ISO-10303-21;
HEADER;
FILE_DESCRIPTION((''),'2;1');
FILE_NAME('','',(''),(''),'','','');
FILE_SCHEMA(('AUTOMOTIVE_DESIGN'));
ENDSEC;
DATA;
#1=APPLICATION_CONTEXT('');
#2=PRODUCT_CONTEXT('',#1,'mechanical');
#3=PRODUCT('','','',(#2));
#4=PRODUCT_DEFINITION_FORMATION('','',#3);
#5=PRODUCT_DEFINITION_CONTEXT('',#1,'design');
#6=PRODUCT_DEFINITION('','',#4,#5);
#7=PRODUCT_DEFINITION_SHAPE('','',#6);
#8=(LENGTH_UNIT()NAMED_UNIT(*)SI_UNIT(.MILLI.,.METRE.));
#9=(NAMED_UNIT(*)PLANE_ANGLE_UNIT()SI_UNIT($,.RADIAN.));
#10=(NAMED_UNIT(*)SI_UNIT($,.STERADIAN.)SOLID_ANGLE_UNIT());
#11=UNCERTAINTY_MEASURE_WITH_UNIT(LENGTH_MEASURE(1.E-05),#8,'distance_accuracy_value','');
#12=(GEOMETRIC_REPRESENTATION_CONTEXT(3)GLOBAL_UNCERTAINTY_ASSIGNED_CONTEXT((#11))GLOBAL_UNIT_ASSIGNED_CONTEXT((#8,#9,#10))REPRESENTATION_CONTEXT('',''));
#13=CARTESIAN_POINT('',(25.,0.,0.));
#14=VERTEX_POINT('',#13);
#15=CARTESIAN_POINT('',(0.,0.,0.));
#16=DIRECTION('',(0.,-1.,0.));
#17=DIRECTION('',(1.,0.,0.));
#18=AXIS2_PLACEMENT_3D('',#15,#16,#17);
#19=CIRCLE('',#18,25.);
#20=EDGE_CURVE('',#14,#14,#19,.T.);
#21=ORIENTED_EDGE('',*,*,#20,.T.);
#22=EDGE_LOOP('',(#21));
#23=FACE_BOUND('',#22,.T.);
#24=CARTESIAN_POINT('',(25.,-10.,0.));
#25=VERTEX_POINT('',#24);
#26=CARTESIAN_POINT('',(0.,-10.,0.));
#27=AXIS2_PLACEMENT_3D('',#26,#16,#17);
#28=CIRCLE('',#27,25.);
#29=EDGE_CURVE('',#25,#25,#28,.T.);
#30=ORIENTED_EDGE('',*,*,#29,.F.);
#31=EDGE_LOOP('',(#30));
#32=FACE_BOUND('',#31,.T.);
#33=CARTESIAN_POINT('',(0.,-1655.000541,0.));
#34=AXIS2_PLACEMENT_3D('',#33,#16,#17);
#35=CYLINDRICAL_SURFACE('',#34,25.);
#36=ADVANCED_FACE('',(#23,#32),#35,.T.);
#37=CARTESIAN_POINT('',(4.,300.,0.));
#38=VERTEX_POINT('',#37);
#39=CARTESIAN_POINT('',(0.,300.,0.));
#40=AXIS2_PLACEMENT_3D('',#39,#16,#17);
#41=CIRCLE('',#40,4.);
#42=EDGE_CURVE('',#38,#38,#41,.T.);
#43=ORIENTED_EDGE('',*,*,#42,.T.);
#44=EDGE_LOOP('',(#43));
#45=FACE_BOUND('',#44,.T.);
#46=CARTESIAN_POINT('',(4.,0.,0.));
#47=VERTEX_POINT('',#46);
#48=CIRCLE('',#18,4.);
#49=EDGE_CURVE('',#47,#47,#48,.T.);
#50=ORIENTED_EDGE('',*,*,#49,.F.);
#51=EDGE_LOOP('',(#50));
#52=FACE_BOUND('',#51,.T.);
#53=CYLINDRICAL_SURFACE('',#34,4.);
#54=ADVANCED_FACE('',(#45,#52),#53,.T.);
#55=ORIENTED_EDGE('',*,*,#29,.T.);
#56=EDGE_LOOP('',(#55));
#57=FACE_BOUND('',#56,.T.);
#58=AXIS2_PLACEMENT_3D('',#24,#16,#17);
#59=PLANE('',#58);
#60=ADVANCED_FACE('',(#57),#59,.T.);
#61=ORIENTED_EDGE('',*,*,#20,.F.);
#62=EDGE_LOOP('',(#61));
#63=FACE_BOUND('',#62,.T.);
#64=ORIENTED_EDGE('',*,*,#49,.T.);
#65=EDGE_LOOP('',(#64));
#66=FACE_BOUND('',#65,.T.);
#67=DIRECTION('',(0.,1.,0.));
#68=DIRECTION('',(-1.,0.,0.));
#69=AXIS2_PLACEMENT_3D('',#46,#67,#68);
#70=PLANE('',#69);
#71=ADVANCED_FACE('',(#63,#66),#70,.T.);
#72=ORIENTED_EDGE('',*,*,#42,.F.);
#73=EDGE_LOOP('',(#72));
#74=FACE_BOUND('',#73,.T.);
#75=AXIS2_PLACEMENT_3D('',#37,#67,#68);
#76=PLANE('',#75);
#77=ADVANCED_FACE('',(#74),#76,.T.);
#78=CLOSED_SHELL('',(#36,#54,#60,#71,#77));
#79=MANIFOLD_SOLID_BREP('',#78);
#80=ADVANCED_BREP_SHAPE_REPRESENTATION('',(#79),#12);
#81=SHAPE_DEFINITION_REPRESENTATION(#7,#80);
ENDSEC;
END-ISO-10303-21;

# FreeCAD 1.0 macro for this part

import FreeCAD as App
import Part
import Sketcher

doc = App.newDocument("Part")
body = doc.addObject("PartDesign::Body", "Body")

sketch1 = body.newObject("Sketcher::SketchObject", "Sketch")
sketch1.AttachmentSupport = (doc.getObject("XY_Plane"), [""])
sketch1.MapMode = "FlatFace"
sketch1.addGeometry(Part.LineSegment(App.Vector(4, 0, 0), App.Vector(4, 300, 0)), False)
sketch1.addGeometry(Part.LineSegment(App.Vector(4, 300, 0), App.Vector(0, 300, 0)), False)
sketch1.addGeometry(Part.LineSegment(App.Vector(0, 300, 0), App.Vector(0, -10, 0)), False)
sketch1.addGeometry(Part.LineSegment(App.Vector(0, -10, 0), App.Vector(25, -10, 0)), False)
sketch1.addGeometry(Part.LineSegment(App.Vector(25, -10, 0), App.Vector(25, 0, 0)), False)
sketch1.addGeometry(Part.LineSegment(App.Vector(25, 0, 0), App.Vector(4, 0, 0)), False)
sketch1.addConstraint(Sketcher.Constraint("Coincident", 0, 2, 1, 1))
sketch1.addConstraint(Sketcher.Constraint("Coincident", 1, 2, 2, 1))
sketch1.addConstraint(Sketcher.Constraint("Coincident", 2, 2, 3, 1))
sketch1.addConstraint(Sketcher.Constraint("Coincident", 3, 2, 4, 1))
sketch1.addConstraint(Sketcher.Constraint("Coincident", 4, 2, 5, 1))
sketch1.addConstraint(Sketcher.Constraint("Coincident", 5, 2, 0, 1))
sketch1.addConstraint(Sketcher.Constraint("Vertical", 0))
sketch1.addConstraint(Sketcher.Constraint("Horizontal", 1))
sketch1.addConstraint(Sketcher.Constraint("Vertical", 2))
sketch1.addConstraint(Sketcher.Constraint("Horizontal", 3))
sketch1.addConstraint(Sketcher.Constraint("Vertical", 4))
sketch1.addConstraint(Sketcher.Constraint("Horizontal", 5))
sketch1.addConstraint(Sketcher.Constraint("PointOnObject", 1, 2, -2))
sketch1.addConstraint(Sketcher.Constraint("PointOnObject", 4, 2, -1))
sketch1.addConstraint(Sketcher.Constraint("DistanceX", 1, 2, 1, 1, 4.0))
sketch1.addConstraint(Sketcher.Constraint("DistanceX", 3, 1, 3, 2, 25.0))
sketch1.addConstraint(Sketcher.Constraint("DistanceY", 0, 1, 0, 2, 300.0))
sketch1.addConstraint(Sketcher.Constraint("DistanceY", 2, 2, 2, 1, 310.0))
revolution = body.newObject("PartDesign::Revolution", "Revolution")
revolution.Profile = sketch1
revolution.ReferenceAxis = (sketch1, ["V_Axis"])
revolution.Angle = 360

doc.recompute()
